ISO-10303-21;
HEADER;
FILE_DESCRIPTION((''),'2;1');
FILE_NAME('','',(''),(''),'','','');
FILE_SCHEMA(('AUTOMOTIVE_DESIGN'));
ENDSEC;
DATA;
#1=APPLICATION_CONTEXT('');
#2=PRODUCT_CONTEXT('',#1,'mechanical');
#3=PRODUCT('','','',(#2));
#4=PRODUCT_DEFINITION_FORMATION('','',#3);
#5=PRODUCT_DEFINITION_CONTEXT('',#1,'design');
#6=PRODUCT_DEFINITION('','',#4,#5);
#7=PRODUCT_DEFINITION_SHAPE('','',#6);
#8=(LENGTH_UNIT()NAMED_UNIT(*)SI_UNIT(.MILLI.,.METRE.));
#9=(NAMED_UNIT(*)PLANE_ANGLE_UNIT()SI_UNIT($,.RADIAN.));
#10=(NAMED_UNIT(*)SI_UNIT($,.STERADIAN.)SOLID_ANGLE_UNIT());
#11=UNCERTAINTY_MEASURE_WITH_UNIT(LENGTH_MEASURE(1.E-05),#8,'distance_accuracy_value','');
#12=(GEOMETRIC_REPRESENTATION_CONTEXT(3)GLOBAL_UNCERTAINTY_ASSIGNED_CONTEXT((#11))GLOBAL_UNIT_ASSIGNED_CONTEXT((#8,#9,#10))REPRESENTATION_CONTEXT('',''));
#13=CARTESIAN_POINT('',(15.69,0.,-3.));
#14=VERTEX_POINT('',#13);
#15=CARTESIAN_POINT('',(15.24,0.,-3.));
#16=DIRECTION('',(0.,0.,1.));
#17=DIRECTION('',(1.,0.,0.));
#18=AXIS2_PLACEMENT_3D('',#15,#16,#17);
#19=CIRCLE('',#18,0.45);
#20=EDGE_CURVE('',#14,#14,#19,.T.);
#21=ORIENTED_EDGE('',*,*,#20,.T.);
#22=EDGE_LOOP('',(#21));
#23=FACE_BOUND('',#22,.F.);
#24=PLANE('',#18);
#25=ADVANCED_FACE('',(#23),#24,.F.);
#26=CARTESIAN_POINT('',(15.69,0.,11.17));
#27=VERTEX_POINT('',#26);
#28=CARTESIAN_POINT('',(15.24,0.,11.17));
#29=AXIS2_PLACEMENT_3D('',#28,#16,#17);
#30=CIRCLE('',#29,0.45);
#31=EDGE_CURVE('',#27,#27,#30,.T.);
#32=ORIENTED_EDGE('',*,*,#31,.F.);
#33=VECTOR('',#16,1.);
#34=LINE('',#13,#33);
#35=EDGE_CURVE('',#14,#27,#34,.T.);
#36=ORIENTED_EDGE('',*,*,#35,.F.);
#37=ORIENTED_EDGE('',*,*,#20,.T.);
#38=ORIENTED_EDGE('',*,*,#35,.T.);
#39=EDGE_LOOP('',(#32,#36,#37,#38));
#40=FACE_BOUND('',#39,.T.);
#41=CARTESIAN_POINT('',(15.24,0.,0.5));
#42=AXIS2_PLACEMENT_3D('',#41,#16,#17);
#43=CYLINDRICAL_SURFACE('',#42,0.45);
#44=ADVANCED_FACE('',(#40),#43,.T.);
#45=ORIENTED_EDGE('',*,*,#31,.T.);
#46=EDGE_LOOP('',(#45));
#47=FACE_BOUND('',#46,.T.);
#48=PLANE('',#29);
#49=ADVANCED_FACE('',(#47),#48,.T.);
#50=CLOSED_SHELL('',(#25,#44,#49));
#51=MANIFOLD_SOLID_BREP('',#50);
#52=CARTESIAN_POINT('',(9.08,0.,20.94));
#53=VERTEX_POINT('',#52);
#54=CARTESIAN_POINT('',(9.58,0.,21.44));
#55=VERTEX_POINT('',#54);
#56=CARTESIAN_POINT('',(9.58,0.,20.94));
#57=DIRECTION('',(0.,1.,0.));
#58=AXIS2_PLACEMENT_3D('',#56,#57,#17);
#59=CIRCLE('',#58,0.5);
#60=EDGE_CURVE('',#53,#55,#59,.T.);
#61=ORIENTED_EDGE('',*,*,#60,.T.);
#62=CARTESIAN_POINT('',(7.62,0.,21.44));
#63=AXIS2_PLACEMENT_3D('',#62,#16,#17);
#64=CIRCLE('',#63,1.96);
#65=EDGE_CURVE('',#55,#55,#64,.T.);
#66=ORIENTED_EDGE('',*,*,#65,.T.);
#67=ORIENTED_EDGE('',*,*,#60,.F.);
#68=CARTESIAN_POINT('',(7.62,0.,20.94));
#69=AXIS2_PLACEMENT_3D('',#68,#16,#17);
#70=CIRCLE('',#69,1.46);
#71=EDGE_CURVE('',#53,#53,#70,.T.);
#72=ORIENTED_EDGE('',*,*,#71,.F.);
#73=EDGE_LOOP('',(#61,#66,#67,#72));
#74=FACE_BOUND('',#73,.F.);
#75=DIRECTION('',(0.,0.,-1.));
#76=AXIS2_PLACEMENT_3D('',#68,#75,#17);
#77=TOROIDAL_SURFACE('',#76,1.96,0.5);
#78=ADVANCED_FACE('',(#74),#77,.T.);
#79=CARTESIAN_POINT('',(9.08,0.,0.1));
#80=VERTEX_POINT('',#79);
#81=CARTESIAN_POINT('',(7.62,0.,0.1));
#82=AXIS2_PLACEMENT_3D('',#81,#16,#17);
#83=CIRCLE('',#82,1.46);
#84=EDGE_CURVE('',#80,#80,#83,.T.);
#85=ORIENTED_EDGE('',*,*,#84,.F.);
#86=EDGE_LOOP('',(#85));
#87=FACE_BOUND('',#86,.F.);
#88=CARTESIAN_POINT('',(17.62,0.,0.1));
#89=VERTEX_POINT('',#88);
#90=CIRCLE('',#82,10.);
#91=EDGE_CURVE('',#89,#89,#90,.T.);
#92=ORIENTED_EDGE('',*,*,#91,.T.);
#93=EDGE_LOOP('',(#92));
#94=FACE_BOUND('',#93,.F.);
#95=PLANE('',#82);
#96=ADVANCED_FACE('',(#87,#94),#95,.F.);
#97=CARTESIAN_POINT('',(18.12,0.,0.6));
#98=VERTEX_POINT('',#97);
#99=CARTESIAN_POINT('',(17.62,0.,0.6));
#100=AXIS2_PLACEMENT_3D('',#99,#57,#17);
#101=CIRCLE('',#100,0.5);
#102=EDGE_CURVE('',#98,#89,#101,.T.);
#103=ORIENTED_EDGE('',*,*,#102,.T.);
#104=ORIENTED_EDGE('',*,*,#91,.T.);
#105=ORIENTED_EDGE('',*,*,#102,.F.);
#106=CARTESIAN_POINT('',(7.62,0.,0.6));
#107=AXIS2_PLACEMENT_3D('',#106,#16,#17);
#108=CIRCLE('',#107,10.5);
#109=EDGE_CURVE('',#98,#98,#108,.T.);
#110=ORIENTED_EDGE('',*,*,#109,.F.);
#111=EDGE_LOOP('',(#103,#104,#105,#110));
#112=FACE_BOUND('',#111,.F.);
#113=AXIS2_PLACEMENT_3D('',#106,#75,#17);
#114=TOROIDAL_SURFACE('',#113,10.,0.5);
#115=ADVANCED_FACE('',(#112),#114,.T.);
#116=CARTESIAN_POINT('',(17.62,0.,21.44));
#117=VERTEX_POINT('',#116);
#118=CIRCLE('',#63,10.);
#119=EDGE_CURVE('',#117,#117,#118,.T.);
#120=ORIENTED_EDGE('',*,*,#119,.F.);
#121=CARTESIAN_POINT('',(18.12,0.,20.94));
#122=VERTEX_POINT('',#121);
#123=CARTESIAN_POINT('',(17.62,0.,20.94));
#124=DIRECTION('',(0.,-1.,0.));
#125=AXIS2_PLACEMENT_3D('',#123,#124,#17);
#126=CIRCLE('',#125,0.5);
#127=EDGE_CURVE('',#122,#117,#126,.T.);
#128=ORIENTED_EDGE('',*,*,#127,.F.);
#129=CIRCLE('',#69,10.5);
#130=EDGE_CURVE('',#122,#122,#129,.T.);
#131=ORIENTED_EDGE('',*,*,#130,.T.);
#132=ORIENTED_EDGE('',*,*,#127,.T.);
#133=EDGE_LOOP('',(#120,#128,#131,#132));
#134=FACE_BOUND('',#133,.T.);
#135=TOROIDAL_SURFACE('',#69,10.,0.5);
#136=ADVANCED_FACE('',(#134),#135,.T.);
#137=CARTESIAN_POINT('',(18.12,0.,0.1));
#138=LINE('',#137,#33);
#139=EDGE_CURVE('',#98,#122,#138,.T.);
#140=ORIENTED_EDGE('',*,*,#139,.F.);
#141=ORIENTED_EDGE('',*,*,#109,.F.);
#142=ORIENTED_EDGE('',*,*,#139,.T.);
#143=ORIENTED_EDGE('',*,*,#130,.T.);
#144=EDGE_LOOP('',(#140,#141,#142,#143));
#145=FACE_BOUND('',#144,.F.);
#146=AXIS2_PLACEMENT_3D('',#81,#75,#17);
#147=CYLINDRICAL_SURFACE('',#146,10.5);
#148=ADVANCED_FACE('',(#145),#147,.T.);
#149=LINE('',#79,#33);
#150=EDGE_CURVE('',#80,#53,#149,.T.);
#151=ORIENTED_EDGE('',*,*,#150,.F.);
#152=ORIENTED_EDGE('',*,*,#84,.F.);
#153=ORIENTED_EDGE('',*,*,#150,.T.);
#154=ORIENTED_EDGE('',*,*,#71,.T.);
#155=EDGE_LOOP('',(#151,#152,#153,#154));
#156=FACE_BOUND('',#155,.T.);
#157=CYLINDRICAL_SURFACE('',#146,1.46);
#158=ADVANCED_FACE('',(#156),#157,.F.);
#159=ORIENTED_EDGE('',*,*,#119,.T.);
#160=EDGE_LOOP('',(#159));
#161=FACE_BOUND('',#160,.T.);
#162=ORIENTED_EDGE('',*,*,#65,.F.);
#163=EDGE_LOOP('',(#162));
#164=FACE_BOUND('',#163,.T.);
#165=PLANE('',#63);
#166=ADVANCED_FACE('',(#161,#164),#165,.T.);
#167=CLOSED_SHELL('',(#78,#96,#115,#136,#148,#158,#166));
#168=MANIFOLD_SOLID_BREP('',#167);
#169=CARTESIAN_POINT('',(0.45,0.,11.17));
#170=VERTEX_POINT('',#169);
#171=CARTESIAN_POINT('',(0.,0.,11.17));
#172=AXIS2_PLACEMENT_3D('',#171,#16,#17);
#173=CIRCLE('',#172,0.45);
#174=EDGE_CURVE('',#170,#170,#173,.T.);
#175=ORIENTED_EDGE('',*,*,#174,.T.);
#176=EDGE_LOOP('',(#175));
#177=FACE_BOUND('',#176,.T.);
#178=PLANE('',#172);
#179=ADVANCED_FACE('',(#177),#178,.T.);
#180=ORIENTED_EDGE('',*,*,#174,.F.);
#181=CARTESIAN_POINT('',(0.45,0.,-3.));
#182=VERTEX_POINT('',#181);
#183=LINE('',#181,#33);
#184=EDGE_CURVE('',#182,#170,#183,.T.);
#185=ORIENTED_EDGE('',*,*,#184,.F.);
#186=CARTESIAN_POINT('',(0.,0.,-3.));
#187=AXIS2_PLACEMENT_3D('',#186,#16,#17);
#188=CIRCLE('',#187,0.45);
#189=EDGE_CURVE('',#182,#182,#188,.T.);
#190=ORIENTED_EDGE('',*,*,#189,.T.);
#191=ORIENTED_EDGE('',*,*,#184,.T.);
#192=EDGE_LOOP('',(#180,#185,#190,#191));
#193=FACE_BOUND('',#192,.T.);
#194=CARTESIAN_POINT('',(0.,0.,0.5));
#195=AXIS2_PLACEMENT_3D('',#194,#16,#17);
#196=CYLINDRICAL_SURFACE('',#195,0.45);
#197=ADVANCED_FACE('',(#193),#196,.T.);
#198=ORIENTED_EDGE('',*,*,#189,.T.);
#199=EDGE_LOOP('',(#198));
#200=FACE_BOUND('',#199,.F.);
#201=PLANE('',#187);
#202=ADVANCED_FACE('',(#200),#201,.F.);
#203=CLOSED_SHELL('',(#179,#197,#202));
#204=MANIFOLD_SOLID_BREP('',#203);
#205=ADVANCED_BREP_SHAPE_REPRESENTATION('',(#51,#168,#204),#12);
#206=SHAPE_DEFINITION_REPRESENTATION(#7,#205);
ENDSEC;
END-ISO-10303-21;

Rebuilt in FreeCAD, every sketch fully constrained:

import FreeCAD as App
import Part
import Sketcher
Q = App.Units.Quantity


def edges_at(feature, points):
    """Names of the edges that pass closest to the given points."""
    edges = feature.Shape.Edges
    near = lambda p: min(range(len(edges)), key=lambda i: edges[i].distToShape(Part.Vertex(*p))[0])
    return sorted({f"Edge{near(p) + 1}" for p in points})

doc = App.newDocument("Part")
body = doc.addObject("PartDesign::Body", "Body")
body.AllowCompound = True

# Sketch on XY plane
sketch1 = body.newObject("Sketcher::SketchObject", "Sketch")
sketch1.AttachmentSupport = (doc.getObject("XY_Plane"), [""])
sketch1.MapMode = "FlatFace"
sketch1.AttachmentOffset = App.Placement(App.Vector(0, 0, 0.5), App.Rotation())
sketch1.addGeometry([
    Part.Circle(App.Vector(0, 0, 0), App.Vector(0, 0, 1), 0.45),
    Part.Circle(App.Vector(15.24, 0, 0), App.Vector(0, 0, 1), 0.45),
], False)
sketch1.addConstraint([
    Sketcher.Constraint("Coincident", 0, 3, -1, 1),
    Sketcher.Constraint("Equal", 0, 1),
    Sketcher.Constraint("PointOnObject", 1, 3, -1),
    Sketcher.Constraint("Diameter", 0, Q("0.9 mm")),
    Sketcher.Constraint("DistanceX", -1, 1, 1, 3, Q("15.24 mm")),
])
pad1 = body.newObject("PartDesign::Pad", "Pad")
pad1.Profile = sketch1
pad1.Type = "TwoLengths"
pad1.Length = 10.67
pad1.Length2 = 3.5
body2 = doc.addObject("PartDesign::Body", "Body001")

# Sketch on XY plane
sketch2 = body2.newObject("Sketcher::SketchObject", "Sketch001")
sketch2.AttachmentSupport = (doc.getObject("XY_Plane001"), [""])
sketch2.MapMode = "FlatFace"
sketch2.AttachmentOffset = App.Placement(App.Vector(0, 0, 0.1), App.Rotation())
sketch2.addGeometry([
    Part.Circle(App.Vector(7.62, 0, 0), App.Vector(0, 0, 1), 10.5),
    Part.Circle(App.Vector(7.62, 0, 0), App.Vector(0, 0, 1), 1.46),
], False)
sketch2.addConstraint([
    Sketcher.Constraint("Coincident", 1, 3, 0, 3),
    Sketcher.Constraint("PointOnObject", 0, 3, -1),
    Sketcher.Constraint("Diameter", 0, Q("21 mm")),
    Sketcher.Constraint("Diameter", 1, Q("2.92 mm")),
    Sketcher.Constraint("DistanceX", -1, 1, 0, 3, Q("7.62 mm")),
])
pad2 = body2.newObject("PartDesign::Pad", "Pad001")
pad2.Profile = sketch2
pad2.Length = 21.34
doc.recompute()

fillet = body2.newObject("PartDesign::Fillet", "Fillet")
fillet.Base = (pad2, edges_at(pad2, [(6.16, 0, 21.44), (-2.88, 0, 21.44), (-2.88, 0, 0.1)]))
fillet.Radius = 0.5

doc.recompute()
